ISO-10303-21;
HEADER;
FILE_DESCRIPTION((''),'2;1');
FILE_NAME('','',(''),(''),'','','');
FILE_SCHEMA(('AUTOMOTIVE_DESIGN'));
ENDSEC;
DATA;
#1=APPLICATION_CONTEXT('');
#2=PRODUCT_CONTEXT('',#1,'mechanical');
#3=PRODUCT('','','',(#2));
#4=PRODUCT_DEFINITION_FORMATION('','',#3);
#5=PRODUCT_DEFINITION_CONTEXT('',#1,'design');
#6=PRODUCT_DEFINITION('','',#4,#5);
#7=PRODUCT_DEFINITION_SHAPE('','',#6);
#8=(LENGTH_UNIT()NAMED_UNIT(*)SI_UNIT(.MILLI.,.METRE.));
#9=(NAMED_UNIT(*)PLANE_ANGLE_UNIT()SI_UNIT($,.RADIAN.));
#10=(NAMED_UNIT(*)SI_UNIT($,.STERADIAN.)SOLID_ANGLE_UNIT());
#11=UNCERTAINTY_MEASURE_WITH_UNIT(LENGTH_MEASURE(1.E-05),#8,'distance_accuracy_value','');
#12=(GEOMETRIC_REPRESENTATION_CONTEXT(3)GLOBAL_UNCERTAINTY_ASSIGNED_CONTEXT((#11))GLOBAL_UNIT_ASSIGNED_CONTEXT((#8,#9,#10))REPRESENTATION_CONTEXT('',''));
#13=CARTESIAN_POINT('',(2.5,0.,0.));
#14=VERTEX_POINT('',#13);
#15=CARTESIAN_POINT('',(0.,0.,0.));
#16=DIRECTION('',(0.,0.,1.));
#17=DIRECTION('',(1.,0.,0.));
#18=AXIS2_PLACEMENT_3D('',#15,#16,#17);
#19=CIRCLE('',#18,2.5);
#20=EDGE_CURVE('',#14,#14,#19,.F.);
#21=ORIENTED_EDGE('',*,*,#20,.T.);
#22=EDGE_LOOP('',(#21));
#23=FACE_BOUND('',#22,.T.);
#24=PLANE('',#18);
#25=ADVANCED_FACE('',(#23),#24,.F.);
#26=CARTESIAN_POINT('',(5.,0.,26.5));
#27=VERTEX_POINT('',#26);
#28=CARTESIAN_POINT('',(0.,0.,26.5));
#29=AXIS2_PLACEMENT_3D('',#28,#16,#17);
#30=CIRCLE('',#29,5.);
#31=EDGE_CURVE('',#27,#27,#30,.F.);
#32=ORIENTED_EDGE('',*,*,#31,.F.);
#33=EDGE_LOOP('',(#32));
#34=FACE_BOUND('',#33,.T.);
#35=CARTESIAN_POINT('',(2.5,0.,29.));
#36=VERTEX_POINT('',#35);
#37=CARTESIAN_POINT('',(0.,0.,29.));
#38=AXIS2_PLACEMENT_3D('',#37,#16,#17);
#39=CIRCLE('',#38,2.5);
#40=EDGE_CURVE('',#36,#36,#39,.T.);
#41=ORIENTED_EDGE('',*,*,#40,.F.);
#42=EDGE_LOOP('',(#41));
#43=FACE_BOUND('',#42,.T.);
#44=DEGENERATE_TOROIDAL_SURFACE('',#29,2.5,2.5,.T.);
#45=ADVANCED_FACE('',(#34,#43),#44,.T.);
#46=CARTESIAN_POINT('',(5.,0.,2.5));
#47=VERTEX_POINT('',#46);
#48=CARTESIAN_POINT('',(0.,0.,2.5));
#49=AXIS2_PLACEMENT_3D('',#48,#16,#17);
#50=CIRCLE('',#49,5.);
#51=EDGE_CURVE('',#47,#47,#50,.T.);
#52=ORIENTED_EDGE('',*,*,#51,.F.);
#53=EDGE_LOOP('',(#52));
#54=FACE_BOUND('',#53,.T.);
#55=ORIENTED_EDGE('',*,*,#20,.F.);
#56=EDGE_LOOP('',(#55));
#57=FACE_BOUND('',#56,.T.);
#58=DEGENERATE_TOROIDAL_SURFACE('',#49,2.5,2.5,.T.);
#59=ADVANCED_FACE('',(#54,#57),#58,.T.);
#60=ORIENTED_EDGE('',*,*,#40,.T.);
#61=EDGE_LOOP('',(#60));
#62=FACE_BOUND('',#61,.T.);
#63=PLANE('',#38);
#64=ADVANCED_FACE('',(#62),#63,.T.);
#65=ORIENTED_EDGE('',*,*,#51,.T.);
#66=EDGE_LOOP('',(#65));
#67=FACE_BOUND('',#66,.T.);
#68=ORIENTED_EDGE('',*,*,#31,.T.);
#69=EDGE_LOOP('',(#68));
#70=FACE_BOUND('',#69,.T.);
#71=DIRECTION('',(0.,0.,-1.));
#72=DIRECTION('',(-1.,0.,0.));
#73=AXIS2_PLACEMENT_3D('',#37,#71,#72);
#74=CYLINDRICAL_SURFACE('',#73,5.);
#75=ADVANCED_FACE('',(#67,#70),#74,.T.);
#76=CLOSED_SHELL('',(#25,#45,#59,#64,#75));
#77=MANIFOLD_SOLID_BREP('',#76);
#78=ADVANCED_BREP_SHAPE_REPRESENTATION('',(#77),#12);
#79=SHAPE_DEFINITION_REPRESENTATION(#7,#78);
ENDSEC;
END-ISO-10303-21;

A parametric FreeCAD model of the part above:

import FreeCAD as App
import Part
import Sketcher


def edges_at(feature, points):
    """Names of the edges that pass closest to the given points."""
    edges = feature.Shape.Edges
    near = lambda p: min(range(len(edges)), key=lambda i: edges[i].distToShape(Part.Vertex(*p))[0])
    return sorted({f"Edge{near(p) + 1}" for p in points})

doc = App.newDocument("Part")
body = doc.addObject("PartDesign::Body", "Body")

# Sketch on XY plane
sketch1 = body.newObject("Sketcher::SketchObject", "Sketch")
sketch1.AttachmentSupport = (doc.getObject("XY_Plane"), [""])
sketch1.MapMode = "FlatFace"
sketch1.addGeometry(Part.Circle(App.Vector(0, 0, 0), App.Vector(0, 0, 1), 5), False)
sketch1.addConstraint(Sketcher.Constraint("Coincident", 0, 3, -1, 1))
sketch1.addConstraint(Sketcher.Constraint("Diameter", 0, 10.0))
pad1 = body.newObject("PartDesign::Pad", "Pad")
pad1.Profile = sketch1
pad1.Length = 29
doc.recompute()

fillet = body.newObject("PartDesign::Fillet", "Fillet")
fillet.Base = (pad1, edges_at(pad1, [(-5, 0, 0), (-5, 0, 29)]))
fillet.Radius = 2.5

doc.recompute()
